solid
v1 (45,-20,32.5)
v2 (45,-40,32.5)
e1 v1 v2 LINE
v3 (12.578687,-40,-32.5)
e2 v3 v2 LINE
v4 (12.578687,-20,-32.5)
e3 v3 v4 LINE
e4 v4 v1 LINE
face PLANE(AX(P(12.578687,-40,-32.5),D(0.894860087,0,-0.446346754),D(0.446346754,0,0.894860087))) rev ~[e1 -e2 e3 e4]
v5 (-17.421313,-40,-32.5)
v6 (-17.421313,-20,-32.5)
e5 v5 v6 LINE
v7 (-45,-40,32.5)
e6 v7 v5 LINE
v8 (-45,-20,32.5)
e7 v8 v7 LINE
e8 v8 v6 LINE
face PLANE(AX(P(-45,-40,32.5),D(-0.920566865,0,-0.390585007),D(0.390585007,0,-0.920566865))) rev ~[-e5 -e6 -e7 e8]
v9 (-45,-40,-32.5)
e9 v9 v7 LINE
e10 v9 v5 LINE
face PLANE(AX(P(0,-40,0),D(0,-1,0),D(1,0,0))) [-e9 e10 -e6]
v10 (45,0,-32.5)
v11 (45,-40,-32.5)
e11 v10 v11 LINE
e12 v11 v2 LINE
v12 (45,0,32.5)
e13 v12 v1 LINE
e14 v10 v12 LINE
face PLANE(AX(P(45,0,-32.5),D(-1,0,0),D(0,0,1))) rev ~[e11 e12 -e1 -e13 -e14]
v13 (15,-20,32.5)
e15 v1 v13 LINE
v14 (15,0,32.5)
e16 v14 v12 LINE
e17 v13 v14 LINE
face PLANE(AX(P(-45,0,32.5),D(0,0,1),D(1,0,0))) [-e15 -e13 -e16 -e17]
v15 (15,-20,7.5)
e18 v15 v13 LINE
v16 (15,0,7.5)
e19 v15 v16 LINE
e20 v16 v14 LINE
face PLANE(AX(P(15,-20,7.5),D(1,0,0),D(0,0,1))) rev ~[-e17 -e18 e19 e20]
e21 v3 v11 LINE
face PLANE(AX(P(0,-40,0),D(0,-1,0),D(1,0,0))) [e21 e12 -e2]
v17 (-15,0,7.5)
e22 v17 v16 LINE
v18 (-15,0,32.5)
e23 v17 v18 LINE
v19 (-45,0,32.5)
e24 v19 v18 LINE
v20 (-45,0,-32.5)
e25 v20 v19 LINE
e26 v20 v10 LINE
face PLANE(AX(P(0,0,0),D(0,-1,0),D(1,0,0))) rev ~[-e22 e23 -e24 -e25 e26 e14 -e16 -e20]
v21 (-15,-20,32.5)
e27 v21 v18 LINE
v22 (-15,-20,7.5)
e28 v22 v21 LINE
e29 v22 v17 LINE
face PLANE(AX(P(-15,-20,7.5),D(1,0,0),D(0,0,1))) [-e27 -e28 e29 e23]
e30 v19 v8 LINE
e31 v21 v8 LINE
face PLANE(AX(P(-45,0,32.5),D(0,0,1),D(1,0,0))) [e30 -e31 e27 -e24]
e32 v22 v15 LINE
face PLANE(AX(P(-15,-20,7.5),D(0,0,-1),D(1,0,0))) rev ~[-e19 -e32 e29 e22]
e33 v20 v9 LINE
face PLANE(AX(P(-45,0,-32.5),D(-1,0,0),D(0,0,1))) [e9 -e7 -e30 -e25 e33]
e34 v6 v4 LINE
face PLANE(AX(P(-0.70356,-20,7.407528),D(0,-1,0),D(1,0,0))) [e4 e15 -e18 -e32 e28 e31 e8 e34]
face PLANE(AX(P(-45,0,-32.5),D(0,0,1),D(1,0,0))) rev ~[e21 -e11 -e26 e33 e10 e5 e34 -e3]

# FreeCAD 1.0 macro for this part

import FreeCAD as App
import Part
import Sketcher
Q = App.Units.Quantity

doc = App.newDocument("Part")
body = doc.addObject("PartDesign::Body", "Body")

# Sketch on XZ plane
sketch1 = body.newObject("Sketcher::SketchObject", "Sketch")
sketch1.AttachmentSupport = (doc.getObject("XZ_Plane"), [""])
sketch1.MapMode = "FlatFace"
sketch1.addGeometry([
    Part.LineSegment(App.Vector(-45, 32, 0), App.Vector(-45, -32, 0)),
    Part.LineSegment(App.Vector(-45, -32, 0), App.Vector(45, -32, 0)),
    Part.LineSegment(App.Vector(45, -32, 0), App.Vector(45, 32, 0)),
    Part.LineSegment(App.Vector(45, 32, 0), App.Vector(-45, 32, 0)),
], False)
sketch1.addConstraint([
    Sketcher.Constraint("Coincident", 0, 2, 1, 1),
    Sketcher.Constraint("Coincident", 1, 2, 2, 1),
    Sketcher.Constraint("Coincident", 2, 2, 3, 1),
    Sketcher.Constraint("Coincident", 3, 2, 0, 1),
    Sketcher.Constraint("Vertical", 0),
    Sketcher.Constraint("Horizontal", 1),
    Sketcher.Constraint("Vertical", 2),
    Sketcher.Constraint("Horizontal", 3),
    Sketcher.Constraint("Symmetric", 0, 2, 2, 2, -1, 1),
    Sketcher.Constraint("DistanceX", 1, 1, 1, 2, Q("90 mm")),
    Sketcher.Constraint("DistanceY", 0, 2, 0, 1, Q("65 mm")),
])
pad1 = body.newObject("PartDesign::Pad", "Pad")
pad1.Profile = sketch1
pad1.Length = 40

# Sketch on XZ plane
sketch2 = body.newObject("Sketcher::SketchObject", "Sketch001")
sketch2.AttachmentSupport = (doc.getObject("XZ_Plane"), [""])
sketch2.MapMode = "FlatFace"
sketch2.AttachmentOffset = App.Placement(App.Vector(0, 0, 40), App.Rotation())
sketch2.addGeometry([
    Part.LineSegment(App.Vector(-45, 32, 0), App.Vector(-17, -32, 0)),
    Part.LineSegment(App.Vector(-17, -32, 0), App.Vector(13, -32, 0)),
    Part.LineSegment(App.Vector(13, -32, 0), App.Vector(45, 32, 0)),
    Part.LineSegment(App.Vector(45, 32, 0), App.Vector(-45, 32, 0)),
], False)
sketch2.addConstraint([
    Sketcher.Constraint("Coincident", 0, 2, 1, 1),
    Sketcher.Constraint("Coincident", 1, 2, 2, 1),
    Sketcher.Constraint("Coincident", 2, 2, 3, 1),
    Sketcher.Constraint("Coincident", 3, 2, 0, 1),
    Sketcher.Constraint("Horizontal", 1),
    Sketcher.Constraint("Horizontal", 3),
    Sketcher.Constraint("DistanceX", 1, 1, 1, 2, Q("30 mm")),
    Sketcher.Constraint("DistanceX", 3, 2, 3, 1, Q("90 mm")),
    Sketcher.Constraint("DistanceX", -1, 1, 2, 2, Q("45 mm")),
    Sketcher.Constraint("DistanceY", 1, 2, 2, 2, Q("65 mm")),
    Sketcher.Constraint("DistanceY", 0, 2, -1, 1, Q("32.5 mm")),
    Sketcher.Constraint("Distance", 0, Q("70.608668 mm")),
])
pocket1 = body.newObject("PartDesign::Pocket", "Pocket")
pocket1.Profile = sketch2
pocket1.Length = 20

# Sketch on XZ plane
sketch3 = body.newObject("Sketcher::SketchObject", "Sketch002")
sketch3.AttachmentSupport = (doc.getObject("XZ_Plane"), [""])
sketch3.MapMode = "FlatFace"
sketch3.AttachmentOffset = App.Placement(App.Vector(0, 0, 20), App.Rotation())
sketch3.addGeometry([
    Part.LineSegment(App.Vector(-15, 58, 0), App.Vector(-15, 8, 0)),
    Part.LineSegment(App.Vector(-15, 8, 0), App.Vector(15, 8, 0)),
    Part.LineSegment(App.Vector(15, 8, 0), App.Vector(15, 58, 0)),
    Part.LineSegment(App.Vector(15, 58, 0), App.Vector(-15, 58, 0)),
], False)
sketch3.addConstraint([
    Sketcher.Constraint("Coincident", 0, 2, 1, 1),
    Sketcher.Constraint("Coincident", 1, 2, 2, 1),
    Sketcher.Constraint("Coincident", 2, 2, 3, 1),
    Sketcher.Constraint("Coincident", 3, 2, 0, 1),
    Sketcher.Constraint("Vertical", 0),
    Sketcher.Constraint("Horizontal", 1),
    Sketcher.Constraint("Vertical", 2),
    Sketcher.Constraint("Horizontal", 3),
    Sketcher.Constraint("DistanceX", 1, 1, 1, 2, Q("30 mm")),
    Sketcher.Constraint("DistanceY", 0, 2, 0, 1, Q("50 mm")),
    Sketcher.Constraint("DistanceX", 0, 2, -1, 1, Q("15 mm")),
    Sketcher.Constraint("DistanceY", -1, 1, 0, 2, Q("7.5 mm")),
])
pocket2 = body.newObject("PartDesign::Pocket", "Pocket001")
pocket2.Profile = sketch3
pocket2.Type = "ThroughAll"

doc.recompute()
